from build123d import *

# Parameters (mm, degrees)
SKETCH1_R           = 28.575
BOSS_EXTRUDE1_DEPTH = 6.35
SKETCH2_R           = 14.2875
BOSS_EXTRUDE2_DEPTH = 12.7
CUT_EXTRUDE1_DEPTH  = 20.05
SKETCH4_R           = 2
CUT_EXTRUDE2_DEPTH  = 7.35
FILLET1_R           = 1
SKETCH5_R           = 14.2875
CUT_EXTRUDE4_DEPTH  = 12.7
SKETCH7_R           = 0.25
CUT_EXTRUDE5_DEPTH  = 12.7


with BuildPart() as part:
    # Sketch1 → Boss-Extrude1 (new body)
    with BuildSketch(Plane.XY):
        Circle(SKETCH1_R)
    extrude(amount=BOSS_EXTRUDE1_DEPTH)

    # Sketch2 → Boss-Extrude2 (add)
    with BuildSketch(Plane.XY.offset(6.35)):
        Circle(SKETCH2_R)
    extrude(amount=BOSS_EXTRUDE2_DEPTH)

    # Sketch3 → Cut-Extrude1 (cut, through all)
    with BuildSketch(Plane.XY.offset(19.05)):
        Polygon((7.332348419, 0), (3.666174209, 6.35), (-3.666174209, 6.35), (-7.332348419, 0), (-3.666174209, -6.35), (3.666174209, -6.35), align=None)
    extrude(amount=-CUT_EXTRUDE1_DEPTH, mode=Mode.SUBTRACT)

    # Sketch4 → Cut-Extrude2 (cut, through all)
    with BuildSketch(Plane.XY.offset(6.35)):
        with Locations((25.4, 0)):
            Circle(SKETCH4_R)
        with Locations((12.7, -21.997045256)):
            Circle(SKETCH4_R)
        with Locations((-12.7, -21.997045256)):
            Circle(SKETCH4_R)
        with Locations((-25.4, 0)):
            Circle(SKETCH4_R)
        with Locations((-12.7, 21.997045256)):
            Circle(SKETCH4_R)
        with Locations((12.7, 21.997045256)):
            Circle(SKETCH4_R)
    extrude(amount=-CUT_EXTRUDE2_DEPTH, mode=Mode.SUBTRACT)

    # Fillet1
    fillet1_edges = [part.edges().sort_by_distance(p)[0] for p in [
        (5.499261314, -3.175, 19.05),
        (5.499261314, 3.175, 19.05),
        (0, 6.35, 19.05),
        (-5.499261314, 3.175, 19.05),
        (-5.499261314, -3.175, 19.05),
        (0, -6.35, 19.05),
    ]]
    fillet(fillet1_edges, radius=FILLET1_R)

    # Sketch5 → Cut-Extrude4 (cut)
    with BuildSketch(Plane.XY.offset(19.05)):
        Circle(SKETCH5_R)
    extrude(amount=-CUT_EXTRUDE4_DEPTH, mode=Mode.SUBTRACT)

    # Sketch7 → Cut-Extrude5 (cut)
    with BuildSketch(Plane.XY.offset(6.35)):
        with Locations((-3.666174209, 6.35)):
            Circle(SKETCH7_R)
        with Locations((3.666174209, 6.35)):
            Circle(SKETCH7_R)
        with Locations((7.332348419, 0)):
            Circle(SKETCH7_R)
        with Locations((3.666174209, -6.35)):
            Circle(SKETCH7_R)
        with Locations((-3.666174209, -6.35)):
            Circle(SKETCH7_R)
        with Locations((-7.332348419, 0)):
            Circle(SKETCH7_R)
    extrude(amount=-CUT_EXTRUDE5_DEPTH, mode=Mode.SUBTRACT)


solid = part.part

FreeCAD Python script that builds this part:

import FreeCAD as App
import Part
import Sketcher
Q = App.Units.Quantity


def edges_at(feature, points):
    """Names of the edges that pass closest to the given points."""
    edges = feature.Shape.Edges
    near = lambda p: min(range(len(edges)), key=lambda i: edges[i].distToShape(Part.Vertex(*p))[0])
    return sorted({f"Edge{near(p) + 1}" for p in points})


def add_polygon(sketch, points):
    """Adds a closed chain of lines whose ends are joined by coincident constraints."""
    first, n = sketch.GeometryCount, len(points)
    for a, b in zip(points, points[1:] + points[:1]):
        sketch.addGeometry(Part.LineSegment(App.Vector(*a, 0), App.Vector(*b, 0)), False)
    for i in range(n):
        sketch.addConstraint(Sketcher.Constraint("Coincident", first + i, 2, first + (i + 1) % n, 1))

doc = App.newDocument("Part")
params = doc.addObject("Spreadsheet::Sheet", "Params")
for row, (alias, value) in enumerate([
    ("sketch1_diameter", "2.25 in"),
    ("pad1_length", "0.25 in"),
    ("sketch2_diameter", "1.125 in"),
    ("pad2_length", "0.5 in"),
    ("fillet_radius", "1 mm"),
    ("sketch5_diameter", "1.125 in"),
    ("pocket3_length", "0.5 in"),
    ("pocket4_length", "0.5 in"),
], start=1):
    params.set(f"A{row}", alias)
    params.set(f"B{row}", "=" + value)
    params.setAlias(f"B{row}", alias)

body = doc.addObject("PartDesign::Body", "Body")

# Sketch on XY plane
sketch1 = body.newObject("Sketcher::SketchObject", "Sketch")
sketch1.AttachmentSupport = (doc.getObject("XY_Plane"), [""])
sketch1.MapMode = "FlatFace"
sketch1.addGeometry(Part.Circle(App.Vector(0, 0, 0), App.Vector(0, 0, 1), 29), False)
sketch1.addConstraint(Sketcher.Constraint("Coincident", 0, 3, -1, 1))
sketch1.addConstraint(Sketcher.Constraint("Diameter", 0, Q("2.25 in")))
sketch1.setExpression("Constraints[1]", "Params.sketch1_diameter")
pad1 = body.newObject("PartDesign::Pad", "Pad")
pad1.Profile = sketch1
pad1.setExpression("Length", "Params.pad1_length")

# Sketch on XY plane
sketch2 = body.newObject("Sketcher::SketchObject", "Sketch001")
sketch2.AttachmentSupport = (doc.getObject("XY_Plane"), [""])
sketch2.MapMode = "FlatFace"
sketch2.AttachmentOffset = App.Placement(App.Vector(0, 0, 0.25 * 25.4), App.Rotation())
sketch2.addGeometry(Part.Circle(App.Vector(0, 0, 0), App.Vector(0, 0, 1), 14), False)
sketch2.addConstraint(Sketcher.Constraint("Coincident", 0, 3, -1, 1))
sketch2.addConstraint(Sketcher.Constraint("Diameter", 0, Q("1.125 in")))
sketch2.setExpression("Constraints[1]", "Params.sketch2_diameter")
pad2 = body.newObject("PartDesign::Pad", "Pad001")
pad2.Profile = sketch2
pad2.setExpression("Length", "Params.pad2_length")

# Sketch on XY plane
sketch3 = body.newObject("Sketcher::SketchObject", "Sketch002")
sketch3.AttachmentSupport = (doc.getObject("XY_Plane"), [""])
sketch3.MapMode = "FlatFace"
sketch3.AttachmentOffset = App.Placement(App.Vector(0, 0, 0.75 * 25.4), App.Rotation())
add_polygon(sketch3, [(7, 0), (4, 6), (-4, 6), (-7, 0), (-4, -6), (4, -6)])  # lines 0-5
sketch3.addConstraint(Sketcher.Constraint("Horizontal", 1))
sketch3.addConstraint(Sketcher.Constraint("Horizontal", 4))
sketch3.addConstraint(Sketcher.Constraint("Symmetric", 0, 2, 3, 2, -1, 1))
sketch3.addConstraint(Sketcher.Constraint("Symmetric", 2, 2, 5, 2, -1, 1))
sketch3.addConstraint(Sketcher.Constraint("PointOnObject", 2, 2, -1))
sketch3.addConstraint(Sketcher.Constraint("Parallel", 2, 5))
sketch3.addConstraint(Sketcher.Constraint("Vertical", 1, 2, 3, 2))
sketch3.addConstraint(Sketcher.Constraint("Angle", 0, Q("120 deg")))
sketch3.addConstraint(Sketcher.Constraint("DistanceY", 3, 2, 1, 2, Q("0.5 in")))
sketch3.addConstraint(Sketcher.Constraint("DistanceX", 1, 2, 1, 1, Q("7.332348 mm")))
pocket1 = body.newObject("PartDesign::Pocket", "Pocket")
pocket1.Profile = sketch3
pocket1.Type = "ThroughAll"

# Sketch on XY plane
sketch4 = body.newObject("Sketcher::SketchObject", "Sketch003")
sketch4.AttachmentSupport = (doc.getObject("XY_Plane"), [""])
sketch4.MapMode = "FlatFace"
sketch4.AttachmentOffset = App.Placement(App.Vector(0, 0, 0.25 * 25.4), App.Rotation())
sketch4.addGeometry(Part.Circle(App.Vector(25.4, 0, 0), App.Vector(0, 0, 1), 2), False)
sketch4.addGeometry(Part.Circle(App.Vector(12.7, -22, 0), App.Vector(0, 0, 1), 2), False)
sketch4.addGeometry(Part.Circle(App.Vector(-12.7, -22, 0), App.Vector(0, 0, 1), 2), False)
sketch4.addGeometry(Part.Circle(App.Vector(-25.4, 0, 0), App.Vector(0, 0, 1), 2), False)
sketch4.addGeometry(Part.Circle(App.Vector(-12.7, 22, 0), App.Vector(0, 0, 1), 2), False)
sketch4.addGeometry(Part.Circle(App.Vector(12.7, 22, 0), App.Vector(0, 0, 1), 2), False)
sketch4.addConstraint(Sketcher.Constraint("Equal", 0, 1))
sketch4.addConstraint(Sketcher.Constraint("Equal", 1, 2))
sketch4.addConstraint(Sketcher.Constraint("Equal", 2, 3))
sketch4.addConstraint(Sketcher.Constraint("Equal", 3, 4))
sketch4.addConstraint(Sketcher.Constraint("Equal", 4, 5))
sketch4.addConstraint(Sketcher.Constraint("Symmetric", 0, 3, 3, 3, -1, 1))
sketch4.addConstraint(Sketcher.Constraint("Symmetric", 1, 3, 4, 3, -1, 1))
sketch4.addConstraint(Sketcher.Constraint("Symmetric", 2, 3, 5, 3, -1, 1))
sketch4.addConstraint(Sketcher.Constraint("Symmetric", 1, 3, 2, 3, -2))
sketch4.addConstraint(Sketcher.Constraint("PointOnObject", 0, 3, -1))
sketch4.addConstraint(Sketcher.Constraint("DistanceX", -1, 1, 0, 3, Q("1 in")))
sketch4.addConstraint(Sketcher.Constraint("DistanceX", 2, 3, 1, 3, Q("1 in")))
sketch4.addConstraint(Sketcher.Constraint("Diameter", 0, Q("4 mm")))
sketch4.addConstraint(Sketcher.Constraint("DistanceY", 2, 3, 4, 3, Q("43.994091 mm")))
pocket2 = body.newObject("PartDesign::Pocket", "Pocket001")
pocket2.Profile = sketch4
pocket2.Type = "ThroughAll"
doc.recompute()

fillet = body.newObject("PartDesign::Fillet", "Fillet")
fillet.Base = (pocket2, edges_at(pocket2, [
    (5.499, -3.175, 19.05),
    (5.499, 3.175, 19.05),
    (0, 6.35, 19.05),
    (-5.499, 3.175, 19.05),
    (-5.499, -3.175, 19.05),
    (0, -6.35, 19.05),
]))
fillet.setExpression("Radius", "Params.fillet_radius")

# Sketch on XY plane
sketch5 = body.newObject("Sketcher::SketchObject", "Sketch004")
sketch5.AttachmentSupport = (doc.getObject("XY_Plane"), [""])
sketch5.MapMode = "FlatFace"
sketch5.AttachmentOffset = App.Placement(App.Vector(0, 0, 0.75 * 25.4), App.Rotation())
sketch5.addGeometry(Part.Circle(App.Vector(0, 0, 0), App.Vector(0, 0, 1), 14), False)
sketch5.addConstraint(Sketcher.Constraint("Coincident", 0, 3, -1, 1))
sketch5.addConstraint(Sketcher.Constraint("Diameter", 0, Q("1.125 in")))
sketch5.setExpression("Constraints[1]", "Params.sketch5_diameter")
pocket3 = body.newObject("PartDesign::Pocket", "Pocket002")
pocket3.Profile = sketch5
pocket3.setExpression("Length", "Params.pocket3_length")

# Sketch on XY plane
sketch6 = body.newObject("Sketcher::SketchObject", "Sketch005")
sketch6.AttachmentSupport = (doc.getObject("XY_Plane"), [""])
sketch6.MapMode = "FlatFace"
sketch6.AttachmentOffset = App.Placement(App.Vector(0, 0, 0.25 * 25.4), App.Rotation())
sketch6.addGeometry(Part.Circle(App.Vector(-3.67, 6.35, 0), App.Vector(0, 0, 1), 0.25), False)
sketch6.addGeometry(Part.Circle(App.Vector(3.67, 6.35, 0), App.Vector(0, 0, 1), 0.25), False)
sketch6.addGeometry(Part.Circle(App.Vector(7.33, 0, 0), App.Vector(0, 0, 1), 0.25), False)
sketch6.addGeometry(Part.Circle(App.Vector(3.67, -6.35, 0), App.Vector(0, 0, 1), 0.25), False)
sketch6.addGeometry(Part.Circle(App.Vector(-3.67, -6.35, 0), App.Vector(0, 0, 1), 0.25), False)
sketch6.addGeometry(Part.Circle(App.Vector(-7.33, 0, 0), App.Vector(0, 0, 1), 0.25), False)
sketch6.addConstraint(Sketcher.Constraint("Equal", 0, 1))
sketch6.addConstraint(Sketcher.Constraint("Equal", 1, 2))
sketch6.addConstraint(Sketcher.Constraint("Equal", 2, 3))
sketch6.addConstraint(Sketcher.Constraint("Equal", 3, 4))
sketch6.addConstraint(Sketcher.Constraint("Equal", 4, 5))
sketch6.addConstraint(Sketcher.Constraint("Symmetric", 0, 3, 3, 3, -1, 1))
sketch6.addConstraint(Sketcher.Constraint("Symmetric", 1, 3, 4, 3, -1, 1))
sketch6.addConstraint(Sketcher.Constraint("Symmetric", 2, 3, 5, 3, -1, 1))
sketch6.addConstraint(Sketcher.Constraint("Symmetric", 0, 3, 1, 3, -2))
sketch6.addConstraint(Sketcher.Constraint("PointOnObject", 2, 3, -1))
sketch6.addConstraint(Sketcher.Constraint("DistanceY", 3, 3, 1, 3, Q("0.5 in")))
sketch6.addConstraint(Sketcher.Constraint("Diameter", 0, Q("0.5 mm")))
sketch6.addConstraint(Sketcher.Constraint("DistanceX", -1, 1, 2, 3, Q("7.332348 mm")))
sketch6.addConstraint(Sketcher.Constraint("DistanceX", 0, 3, 1, 3, Q("7.332348 mm")))
pocket4 = body.newObject("PartDesign::Pocket", "Pocket003")
pocket4.Profile = sketch6
pocket4.setExpression("Length", "Params.pocket4_length")

doc.recompute()
